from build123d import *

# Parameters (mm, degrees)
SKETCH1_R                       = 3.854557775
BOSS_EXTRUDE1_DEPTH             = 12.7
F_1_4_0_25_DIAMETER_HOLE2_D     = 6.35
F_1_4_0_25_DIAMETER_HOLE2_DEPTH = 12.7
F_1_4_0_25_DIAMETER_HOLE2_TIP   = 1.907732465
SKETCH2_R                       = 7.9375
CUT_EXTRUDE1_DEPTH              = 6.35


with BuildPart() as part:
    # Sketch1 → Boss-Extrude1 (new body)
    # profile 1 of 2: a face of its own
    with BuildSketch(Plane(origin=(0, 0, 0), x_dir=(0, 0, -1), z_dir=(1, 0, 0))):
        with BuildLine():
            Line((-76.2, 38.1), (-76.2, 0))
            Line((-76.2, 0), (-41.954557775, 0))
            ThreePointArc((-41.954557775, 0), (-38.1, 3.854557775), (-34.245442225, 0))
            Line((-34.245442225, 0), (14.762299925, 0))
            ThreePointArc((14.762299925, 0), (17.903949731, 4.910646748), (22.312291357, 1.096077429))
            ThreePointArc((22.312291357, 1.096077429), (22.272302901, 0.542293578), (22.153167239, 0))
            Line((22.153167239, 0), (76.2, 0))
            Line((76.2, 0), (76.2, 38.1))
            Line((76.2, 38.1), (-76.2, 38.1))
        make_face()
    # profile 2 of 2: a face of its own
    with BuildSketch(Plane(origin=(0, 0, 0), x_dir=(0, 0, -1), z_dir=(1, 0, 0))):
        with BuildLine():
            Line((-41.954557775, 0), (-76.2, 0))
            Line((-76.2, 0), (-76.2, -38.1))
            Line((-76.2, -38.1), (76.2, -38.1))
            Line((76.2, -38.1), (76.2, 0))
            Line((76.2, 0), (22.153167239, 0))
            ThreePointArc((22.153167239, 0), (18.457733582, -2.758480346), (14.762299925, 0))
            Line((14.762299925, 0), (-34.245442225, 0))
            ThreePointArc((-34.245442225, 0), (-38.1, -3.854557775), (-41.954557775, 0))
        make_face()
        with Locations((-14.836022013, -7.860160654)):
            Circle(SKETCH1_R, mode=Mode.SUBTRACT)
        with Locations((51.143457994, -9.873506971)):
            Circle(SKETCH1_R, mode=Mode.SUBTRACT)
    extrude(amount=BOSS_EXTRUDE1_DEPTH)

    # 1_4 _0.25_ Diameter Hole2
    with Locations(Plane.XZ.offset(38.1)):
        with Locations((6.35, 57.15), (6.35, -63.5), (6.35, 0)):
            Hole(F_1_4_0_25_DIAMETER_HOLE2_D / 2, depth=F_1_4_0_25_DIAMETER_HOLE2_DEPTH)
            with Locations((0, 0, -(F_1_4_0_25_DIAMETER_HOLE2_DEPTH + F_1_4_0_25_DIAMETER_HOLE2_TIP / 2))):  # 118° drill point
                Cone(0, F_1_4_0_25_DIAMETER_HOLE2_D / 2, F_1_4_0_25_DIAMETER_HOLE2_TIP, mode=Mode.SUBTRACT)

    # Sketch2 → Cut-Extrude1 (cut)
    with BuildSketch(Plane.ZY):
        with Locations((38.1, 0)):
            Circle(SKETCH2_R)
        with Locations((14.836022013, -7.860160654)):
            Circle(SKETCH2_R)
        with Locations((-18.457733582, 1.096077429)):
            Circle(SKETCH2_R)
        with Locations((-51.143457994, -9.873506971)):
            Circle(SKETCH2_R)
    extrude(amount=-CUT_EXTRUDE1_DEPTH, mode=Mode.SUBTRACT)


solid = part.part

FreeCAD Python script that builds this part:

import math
import FreeCAD as App
import Part
import Sketcher

V = App.Vector
Q = App.Units.Quantity

doc = App.newDocument("Part")
params = doc.addObject("Spreadsheet::Sheet", "Params")
for row, (alias, value) in enumerate([
    ("sketch1_width", "3 in"),
    ("sketch1_height", "6 in"),
    ("pad1_length", "0.5 in"),
    ("sketch2_diameter", "0.25 in"),
    ("hole_diameter", "0.25 in"),
    ("hole_depth", "0.5 in"),
    ("sketch3_diameter", "0.625 in"),
    ("pocket1_length", "0.25 in"),
], start=1):
    params.set(f"A{row}", alias)
    params.set(f"B{row}", "=" + value)
    params.setAlias(f"B{row}", alias)

body = doc.addObject("PartDesign::Body", "Body")

# Sketch on YZ plane
sketch1 = body.newObject("Sketcher::SketchObject", "Sketch")
sketch1.AttachmentSupport = (doc.getObject("YZ_Plane"), [""])
sketch1.MapMode = "FlatFace"
sketch1.addGeometry(Part.LineSegment(V(38.1, 76.2, 0), V(-38.1, 76.2, 0)), False)
sketch1.addGeometry(Part.LineSegment(V(-38.1, 76.2, 0), V(-38.1, -76.2, 0)), False)
sketch1.addGeometry(Part.LineSegment(V(-38.1, -76.2, 0), V(38.1, -76.2, 0)), False)
sketch1.addGeometry(Part.LineSegment(V(38.1, -76.2, 0), V(38.1, 76.2, 0)), False)
sketch1.addGeometry(Part.Circle(V(0, 38.1, 0), V(0, 0, 1), 3.9), False)
sketch1.addGeometry(Part.ArcOfCircle(Part.Circle(V(1.1, -18.5, 0), V(0, 0, 1), 3.9), math.radians(-90), math.radians(107)), False)
sketch1.addGeometry(Part.ArcOfCircle(Part.Circle(V(1.1, -18.5, 0), V(0, 0, 1), 3.9), math.radians(-106.52), math.radians(-90)), False)
sketch1.addGeometry(Part.ArcOfCircle(Part.Circle(V(1.1, -18.5, 0), V(0, 0, 1), 3.9), math.radians(107), math.radians(253)), False)
sketch1.addGeometry(Part.Circle(V(-7.9, 14.8, 0), V(0, 0, 1), 3.9), False)
sketch1.addGeometry(Part.Circle(V(-9.9, -51.1, 0), V(0, 0, 1), 3.9), False)
sketch1.addConstraint(Sketcher.Constraint("Coincident", 0, 2, 1, 1))
sketch1.addConstraint(Sketcher.Constraint("Coincident", 1, 2, 2, 1))
sketch1.addConstraint(Sketcher.Constraint("Coincident", 2, 2, 3, 1))
sketch1.addConstraint(Sketcher.Constraint("Coincident", 3, 2, 0, 1))
sketch1.addConstraint(Sketcher.Constraint("Tangent", 5, 1, 6, 2))
sketch1.addConstraint(Sketcher.Constraint("Tangent", 6, 1, 7, 2))
sketch1.addConstraint(Sketcher.Constraint("Tangent", 7, 1, 5, 2))
sketch1.addConstraint(Sketcher.Constraint("Horizontal", 0))
sketch1.addConstraint(Sketcher.Constraint("Vertical", 1))
sketch1.addConstraint(Sketcher.Constraint("Horizontal", 2))
sketch1.addConstraint(Sketcher.Constraint("Vertical", 3))
sketch1.addConstraint(Sketcher.Constraint("Equal", 4, 5))
sketch1.addConstraint(Sketcher.Constraint("Equal", 7, 8))
sketch1.addConstraint(Sketcher.Constraint("Equal", 8, 9))
sketch1.addConstraint(Sketcher.Constraint("Symmetric", 0, 2, 2, 2, -1, 1))
sketch1.addConstraint(Sketcher.Constraint("PointOnObject", 4, 3, -2))
sketch1.addConstraint(Sketcher.Constraint("PointOnObject", 6, 1, -2))
sketch1.addConstraint(Sketcher.Constraint("PointOnObject", 7, 1, -2))
sketch1.addConstraint(Sketcher.Constraint("Vertical", 7, 3, 5, 1))
sketch1.addConstraint(Sketcher.Constraint("DistanceX", 0, 2, 0, 1, Q("3 in")))
sketch1.addConstraint(Sketcher.Constraint("DistanceY", 1, 2, 1, 1, Q("6 in")))
sketch1.addConstraint(Sketcher.Constraint("DistanceY", -1, 1, 4, 3, Q("1.5 in")))
sketch1.addConstraint(Sketcher.Constraint("Diameter", 4, Q("7.709116 mm")))
sketch1.addConstraint(Sketcher.Constraint("DistanceY", 7, 1, -1, 1, Q("14.7623 mm")))
sketch1.addConstraint(Sketcher.Constraint("DistanceX", 8, 3, -1, 1, Q("7.860161 mm")))
sketch1.addConstraint(Sketcher.Constraint("DistanceY", 5, 1, -1, 1, Q("22.312291 mm")))
sketch1.addConstraint(Sketcher.Constraint("DistanceY", 9, 3, 8, 3, Q("65.97948 mm")))
sketch1.addConstraint(Sketcher.Constraint("DistanceY", 9, 3, 6, 1, Q("28.990291 mm")))
sketch1.addConstraint(Sketcher.Constraint("DistanceX", 9, 3, -1, 1, Q("9.873507 mm")))
sketch1.setExpression("Constraints[19]", "Params.sketch1_width")
sketch1.setExpression("Constraints[20]", "Params.sketch1_height")
pad1 = body.newObject("PartDesign::Pad", "Pad")
pad1.Profile = sketch1
pad1.setExpression("Length", "Params.pad1_length")

# Sketch on XZ plane
sketch2 = body.newObject("Sketcher::SketchObject", "Sketch001")
sketch2.AttachmentSupport = (doc.getObject("XZ_Plane"), [""])
sketch2.MapMode = "FlatFace"
sketch2.AttachmentOffset = App.Placement(V(0, 0, 1.5 * 25.4), App.Rotation())
sketch2.addGeometry(Part.Circle(V(6.3, 57.1, 0), V(0, 0, 1), 3.2), False)
sketch2.addGeometry(Part.Circle(V(6.3, -63.5, 0), V(0, 0, 1), 3.2), False)
sketch2.addGeometry(Part.Circle(V(6.3, 0, 0), V(0, 0, 1), 3.2), False)
sketch2.addConstraint(Sketcher.Constraint("Equal", 0, 1))
sketch2.addConstraint(Sketcher.Constraint("Equal", 1, 2))
sketch2.addConstraint(Sketcher.Constraint("PointOnObject", 2, 3, -1))
sketch2.addConstraint(Sketcher.Constraint("Vertical", 0, 3, 1, 3))
sketch2.addConstraint(Sketcher.Constraint("Vertical", 1, 3, 2, 3))
sketch2.addConstraint(Sketcher.Constraint("Diameter", 0, Q("0.25 in")))
sketch2.addConstraint(Sketcher.Constraint("DistanceY", 1, 3, -1, 1, Q("2.5 in")))
sketch2.addConstraint(Sketcher.Constraint("DistanceX", -1, 1, 0, 3, Q("0.25 in")))
sketch2.addConstraint(Sketcher.Constraint("DistanceY", -1, 1, 0, 3, Q("2.25 in")))
sketch2.setExpression("Constraints[5]", "Params.sketch2_diameter")
doc.recompute()
hole = body.newObject("PartDesign::Hole", "Hole")
hole.Profile = sketch2
hole.ThreadType = "None"
hole.setExpression("Diameter", "Params.hole_diameter")
hole.DepthType = "Dimension"
hole.setExpression("Depth", "Params.hole_depth")
hole.DrillPoint = "Angled"
hole.DrillPointAngle = 118

# Sketch on YZ plane
sketch3 = body.newObject("Sketcher::SketchObject", "Sketch002")
sketch3.AttachmentSupport = (doc.getObject("YZ_Plane"), [""])
sketch3.MapMode = "FlatFace"
sketch3.addGeometry(Part.Circle(V(0, 38, 0), V(0, 0, 1), 8), False)
sketch3.addGeometry(Part.Circle(V(-8, 15, 0), V(0, 0, 1), 8), False)
sketch3.addGeometry(Part.Circle(V(1, -18, 0), V(0, 0, 1), 8), False)
sketch3.addGeometry(Part.Circle(V(-10, -51, 0), V(0, 0, 1), 8), False)
sketch3.addConstraint(Sketcher.Constraint("Equal", 0, 1))
sketch3.addConstraint(Sketcher.Constraint("Equal", 1, 2))
sketch3.addConstraint(Sketcher.Constraint("Equal", 2, 3))
sketch3.addConstraint(Sketcher.Constraint("PointOnObject", 0, 3, -2))
sketch3.addConstraint(Sketcher.Constraint("Diameter", 0, Q("0.625 in")))
sketch3.addConstraint(Sketcher.Constraint("DistanceY", -1, 1, 0, 3, Q("1.5 in")))
sketch3.addConstraint(Sketcher.Constraint("DistanceX", 1, 3, -1, 1, Q("7.860161 mm")))
sketch3.addConstraint(Sketcher.Constraint("DistanceX", 1, 3, 2, 3, Q("8.956238 mm")))
sketch3.addConstraint(Sketcher.Constraint("DistanceY", 3, 3, 1, 3, Q("65.97948 mm")))
sketch3.addConstraint(Sketcher.Constraint("DistanceY", -1, 1, 1, 3, Q("14.836022 mm")))
sketch3.addConstraint(Sketcher.Constraint("DistanceY", 2, 3, -1, 1, Q("18.457734 mm")))
sketch3.addConstraint(Sketcher.Constraint("DistanceX", 3, 3, -1, 1, Q("9.873507 mm")))
sketch3.setExpression("Constraints[4]", "Params.sketch3_diameter")
pocket1 = body.newObject("PartDesign::Pocket", "Pocket")
pocket1.Profile = sketch3
pocket1.setExpression("Length", "Params.pocket1_length")
pocket1.Reversed = True

doc.recompute()
